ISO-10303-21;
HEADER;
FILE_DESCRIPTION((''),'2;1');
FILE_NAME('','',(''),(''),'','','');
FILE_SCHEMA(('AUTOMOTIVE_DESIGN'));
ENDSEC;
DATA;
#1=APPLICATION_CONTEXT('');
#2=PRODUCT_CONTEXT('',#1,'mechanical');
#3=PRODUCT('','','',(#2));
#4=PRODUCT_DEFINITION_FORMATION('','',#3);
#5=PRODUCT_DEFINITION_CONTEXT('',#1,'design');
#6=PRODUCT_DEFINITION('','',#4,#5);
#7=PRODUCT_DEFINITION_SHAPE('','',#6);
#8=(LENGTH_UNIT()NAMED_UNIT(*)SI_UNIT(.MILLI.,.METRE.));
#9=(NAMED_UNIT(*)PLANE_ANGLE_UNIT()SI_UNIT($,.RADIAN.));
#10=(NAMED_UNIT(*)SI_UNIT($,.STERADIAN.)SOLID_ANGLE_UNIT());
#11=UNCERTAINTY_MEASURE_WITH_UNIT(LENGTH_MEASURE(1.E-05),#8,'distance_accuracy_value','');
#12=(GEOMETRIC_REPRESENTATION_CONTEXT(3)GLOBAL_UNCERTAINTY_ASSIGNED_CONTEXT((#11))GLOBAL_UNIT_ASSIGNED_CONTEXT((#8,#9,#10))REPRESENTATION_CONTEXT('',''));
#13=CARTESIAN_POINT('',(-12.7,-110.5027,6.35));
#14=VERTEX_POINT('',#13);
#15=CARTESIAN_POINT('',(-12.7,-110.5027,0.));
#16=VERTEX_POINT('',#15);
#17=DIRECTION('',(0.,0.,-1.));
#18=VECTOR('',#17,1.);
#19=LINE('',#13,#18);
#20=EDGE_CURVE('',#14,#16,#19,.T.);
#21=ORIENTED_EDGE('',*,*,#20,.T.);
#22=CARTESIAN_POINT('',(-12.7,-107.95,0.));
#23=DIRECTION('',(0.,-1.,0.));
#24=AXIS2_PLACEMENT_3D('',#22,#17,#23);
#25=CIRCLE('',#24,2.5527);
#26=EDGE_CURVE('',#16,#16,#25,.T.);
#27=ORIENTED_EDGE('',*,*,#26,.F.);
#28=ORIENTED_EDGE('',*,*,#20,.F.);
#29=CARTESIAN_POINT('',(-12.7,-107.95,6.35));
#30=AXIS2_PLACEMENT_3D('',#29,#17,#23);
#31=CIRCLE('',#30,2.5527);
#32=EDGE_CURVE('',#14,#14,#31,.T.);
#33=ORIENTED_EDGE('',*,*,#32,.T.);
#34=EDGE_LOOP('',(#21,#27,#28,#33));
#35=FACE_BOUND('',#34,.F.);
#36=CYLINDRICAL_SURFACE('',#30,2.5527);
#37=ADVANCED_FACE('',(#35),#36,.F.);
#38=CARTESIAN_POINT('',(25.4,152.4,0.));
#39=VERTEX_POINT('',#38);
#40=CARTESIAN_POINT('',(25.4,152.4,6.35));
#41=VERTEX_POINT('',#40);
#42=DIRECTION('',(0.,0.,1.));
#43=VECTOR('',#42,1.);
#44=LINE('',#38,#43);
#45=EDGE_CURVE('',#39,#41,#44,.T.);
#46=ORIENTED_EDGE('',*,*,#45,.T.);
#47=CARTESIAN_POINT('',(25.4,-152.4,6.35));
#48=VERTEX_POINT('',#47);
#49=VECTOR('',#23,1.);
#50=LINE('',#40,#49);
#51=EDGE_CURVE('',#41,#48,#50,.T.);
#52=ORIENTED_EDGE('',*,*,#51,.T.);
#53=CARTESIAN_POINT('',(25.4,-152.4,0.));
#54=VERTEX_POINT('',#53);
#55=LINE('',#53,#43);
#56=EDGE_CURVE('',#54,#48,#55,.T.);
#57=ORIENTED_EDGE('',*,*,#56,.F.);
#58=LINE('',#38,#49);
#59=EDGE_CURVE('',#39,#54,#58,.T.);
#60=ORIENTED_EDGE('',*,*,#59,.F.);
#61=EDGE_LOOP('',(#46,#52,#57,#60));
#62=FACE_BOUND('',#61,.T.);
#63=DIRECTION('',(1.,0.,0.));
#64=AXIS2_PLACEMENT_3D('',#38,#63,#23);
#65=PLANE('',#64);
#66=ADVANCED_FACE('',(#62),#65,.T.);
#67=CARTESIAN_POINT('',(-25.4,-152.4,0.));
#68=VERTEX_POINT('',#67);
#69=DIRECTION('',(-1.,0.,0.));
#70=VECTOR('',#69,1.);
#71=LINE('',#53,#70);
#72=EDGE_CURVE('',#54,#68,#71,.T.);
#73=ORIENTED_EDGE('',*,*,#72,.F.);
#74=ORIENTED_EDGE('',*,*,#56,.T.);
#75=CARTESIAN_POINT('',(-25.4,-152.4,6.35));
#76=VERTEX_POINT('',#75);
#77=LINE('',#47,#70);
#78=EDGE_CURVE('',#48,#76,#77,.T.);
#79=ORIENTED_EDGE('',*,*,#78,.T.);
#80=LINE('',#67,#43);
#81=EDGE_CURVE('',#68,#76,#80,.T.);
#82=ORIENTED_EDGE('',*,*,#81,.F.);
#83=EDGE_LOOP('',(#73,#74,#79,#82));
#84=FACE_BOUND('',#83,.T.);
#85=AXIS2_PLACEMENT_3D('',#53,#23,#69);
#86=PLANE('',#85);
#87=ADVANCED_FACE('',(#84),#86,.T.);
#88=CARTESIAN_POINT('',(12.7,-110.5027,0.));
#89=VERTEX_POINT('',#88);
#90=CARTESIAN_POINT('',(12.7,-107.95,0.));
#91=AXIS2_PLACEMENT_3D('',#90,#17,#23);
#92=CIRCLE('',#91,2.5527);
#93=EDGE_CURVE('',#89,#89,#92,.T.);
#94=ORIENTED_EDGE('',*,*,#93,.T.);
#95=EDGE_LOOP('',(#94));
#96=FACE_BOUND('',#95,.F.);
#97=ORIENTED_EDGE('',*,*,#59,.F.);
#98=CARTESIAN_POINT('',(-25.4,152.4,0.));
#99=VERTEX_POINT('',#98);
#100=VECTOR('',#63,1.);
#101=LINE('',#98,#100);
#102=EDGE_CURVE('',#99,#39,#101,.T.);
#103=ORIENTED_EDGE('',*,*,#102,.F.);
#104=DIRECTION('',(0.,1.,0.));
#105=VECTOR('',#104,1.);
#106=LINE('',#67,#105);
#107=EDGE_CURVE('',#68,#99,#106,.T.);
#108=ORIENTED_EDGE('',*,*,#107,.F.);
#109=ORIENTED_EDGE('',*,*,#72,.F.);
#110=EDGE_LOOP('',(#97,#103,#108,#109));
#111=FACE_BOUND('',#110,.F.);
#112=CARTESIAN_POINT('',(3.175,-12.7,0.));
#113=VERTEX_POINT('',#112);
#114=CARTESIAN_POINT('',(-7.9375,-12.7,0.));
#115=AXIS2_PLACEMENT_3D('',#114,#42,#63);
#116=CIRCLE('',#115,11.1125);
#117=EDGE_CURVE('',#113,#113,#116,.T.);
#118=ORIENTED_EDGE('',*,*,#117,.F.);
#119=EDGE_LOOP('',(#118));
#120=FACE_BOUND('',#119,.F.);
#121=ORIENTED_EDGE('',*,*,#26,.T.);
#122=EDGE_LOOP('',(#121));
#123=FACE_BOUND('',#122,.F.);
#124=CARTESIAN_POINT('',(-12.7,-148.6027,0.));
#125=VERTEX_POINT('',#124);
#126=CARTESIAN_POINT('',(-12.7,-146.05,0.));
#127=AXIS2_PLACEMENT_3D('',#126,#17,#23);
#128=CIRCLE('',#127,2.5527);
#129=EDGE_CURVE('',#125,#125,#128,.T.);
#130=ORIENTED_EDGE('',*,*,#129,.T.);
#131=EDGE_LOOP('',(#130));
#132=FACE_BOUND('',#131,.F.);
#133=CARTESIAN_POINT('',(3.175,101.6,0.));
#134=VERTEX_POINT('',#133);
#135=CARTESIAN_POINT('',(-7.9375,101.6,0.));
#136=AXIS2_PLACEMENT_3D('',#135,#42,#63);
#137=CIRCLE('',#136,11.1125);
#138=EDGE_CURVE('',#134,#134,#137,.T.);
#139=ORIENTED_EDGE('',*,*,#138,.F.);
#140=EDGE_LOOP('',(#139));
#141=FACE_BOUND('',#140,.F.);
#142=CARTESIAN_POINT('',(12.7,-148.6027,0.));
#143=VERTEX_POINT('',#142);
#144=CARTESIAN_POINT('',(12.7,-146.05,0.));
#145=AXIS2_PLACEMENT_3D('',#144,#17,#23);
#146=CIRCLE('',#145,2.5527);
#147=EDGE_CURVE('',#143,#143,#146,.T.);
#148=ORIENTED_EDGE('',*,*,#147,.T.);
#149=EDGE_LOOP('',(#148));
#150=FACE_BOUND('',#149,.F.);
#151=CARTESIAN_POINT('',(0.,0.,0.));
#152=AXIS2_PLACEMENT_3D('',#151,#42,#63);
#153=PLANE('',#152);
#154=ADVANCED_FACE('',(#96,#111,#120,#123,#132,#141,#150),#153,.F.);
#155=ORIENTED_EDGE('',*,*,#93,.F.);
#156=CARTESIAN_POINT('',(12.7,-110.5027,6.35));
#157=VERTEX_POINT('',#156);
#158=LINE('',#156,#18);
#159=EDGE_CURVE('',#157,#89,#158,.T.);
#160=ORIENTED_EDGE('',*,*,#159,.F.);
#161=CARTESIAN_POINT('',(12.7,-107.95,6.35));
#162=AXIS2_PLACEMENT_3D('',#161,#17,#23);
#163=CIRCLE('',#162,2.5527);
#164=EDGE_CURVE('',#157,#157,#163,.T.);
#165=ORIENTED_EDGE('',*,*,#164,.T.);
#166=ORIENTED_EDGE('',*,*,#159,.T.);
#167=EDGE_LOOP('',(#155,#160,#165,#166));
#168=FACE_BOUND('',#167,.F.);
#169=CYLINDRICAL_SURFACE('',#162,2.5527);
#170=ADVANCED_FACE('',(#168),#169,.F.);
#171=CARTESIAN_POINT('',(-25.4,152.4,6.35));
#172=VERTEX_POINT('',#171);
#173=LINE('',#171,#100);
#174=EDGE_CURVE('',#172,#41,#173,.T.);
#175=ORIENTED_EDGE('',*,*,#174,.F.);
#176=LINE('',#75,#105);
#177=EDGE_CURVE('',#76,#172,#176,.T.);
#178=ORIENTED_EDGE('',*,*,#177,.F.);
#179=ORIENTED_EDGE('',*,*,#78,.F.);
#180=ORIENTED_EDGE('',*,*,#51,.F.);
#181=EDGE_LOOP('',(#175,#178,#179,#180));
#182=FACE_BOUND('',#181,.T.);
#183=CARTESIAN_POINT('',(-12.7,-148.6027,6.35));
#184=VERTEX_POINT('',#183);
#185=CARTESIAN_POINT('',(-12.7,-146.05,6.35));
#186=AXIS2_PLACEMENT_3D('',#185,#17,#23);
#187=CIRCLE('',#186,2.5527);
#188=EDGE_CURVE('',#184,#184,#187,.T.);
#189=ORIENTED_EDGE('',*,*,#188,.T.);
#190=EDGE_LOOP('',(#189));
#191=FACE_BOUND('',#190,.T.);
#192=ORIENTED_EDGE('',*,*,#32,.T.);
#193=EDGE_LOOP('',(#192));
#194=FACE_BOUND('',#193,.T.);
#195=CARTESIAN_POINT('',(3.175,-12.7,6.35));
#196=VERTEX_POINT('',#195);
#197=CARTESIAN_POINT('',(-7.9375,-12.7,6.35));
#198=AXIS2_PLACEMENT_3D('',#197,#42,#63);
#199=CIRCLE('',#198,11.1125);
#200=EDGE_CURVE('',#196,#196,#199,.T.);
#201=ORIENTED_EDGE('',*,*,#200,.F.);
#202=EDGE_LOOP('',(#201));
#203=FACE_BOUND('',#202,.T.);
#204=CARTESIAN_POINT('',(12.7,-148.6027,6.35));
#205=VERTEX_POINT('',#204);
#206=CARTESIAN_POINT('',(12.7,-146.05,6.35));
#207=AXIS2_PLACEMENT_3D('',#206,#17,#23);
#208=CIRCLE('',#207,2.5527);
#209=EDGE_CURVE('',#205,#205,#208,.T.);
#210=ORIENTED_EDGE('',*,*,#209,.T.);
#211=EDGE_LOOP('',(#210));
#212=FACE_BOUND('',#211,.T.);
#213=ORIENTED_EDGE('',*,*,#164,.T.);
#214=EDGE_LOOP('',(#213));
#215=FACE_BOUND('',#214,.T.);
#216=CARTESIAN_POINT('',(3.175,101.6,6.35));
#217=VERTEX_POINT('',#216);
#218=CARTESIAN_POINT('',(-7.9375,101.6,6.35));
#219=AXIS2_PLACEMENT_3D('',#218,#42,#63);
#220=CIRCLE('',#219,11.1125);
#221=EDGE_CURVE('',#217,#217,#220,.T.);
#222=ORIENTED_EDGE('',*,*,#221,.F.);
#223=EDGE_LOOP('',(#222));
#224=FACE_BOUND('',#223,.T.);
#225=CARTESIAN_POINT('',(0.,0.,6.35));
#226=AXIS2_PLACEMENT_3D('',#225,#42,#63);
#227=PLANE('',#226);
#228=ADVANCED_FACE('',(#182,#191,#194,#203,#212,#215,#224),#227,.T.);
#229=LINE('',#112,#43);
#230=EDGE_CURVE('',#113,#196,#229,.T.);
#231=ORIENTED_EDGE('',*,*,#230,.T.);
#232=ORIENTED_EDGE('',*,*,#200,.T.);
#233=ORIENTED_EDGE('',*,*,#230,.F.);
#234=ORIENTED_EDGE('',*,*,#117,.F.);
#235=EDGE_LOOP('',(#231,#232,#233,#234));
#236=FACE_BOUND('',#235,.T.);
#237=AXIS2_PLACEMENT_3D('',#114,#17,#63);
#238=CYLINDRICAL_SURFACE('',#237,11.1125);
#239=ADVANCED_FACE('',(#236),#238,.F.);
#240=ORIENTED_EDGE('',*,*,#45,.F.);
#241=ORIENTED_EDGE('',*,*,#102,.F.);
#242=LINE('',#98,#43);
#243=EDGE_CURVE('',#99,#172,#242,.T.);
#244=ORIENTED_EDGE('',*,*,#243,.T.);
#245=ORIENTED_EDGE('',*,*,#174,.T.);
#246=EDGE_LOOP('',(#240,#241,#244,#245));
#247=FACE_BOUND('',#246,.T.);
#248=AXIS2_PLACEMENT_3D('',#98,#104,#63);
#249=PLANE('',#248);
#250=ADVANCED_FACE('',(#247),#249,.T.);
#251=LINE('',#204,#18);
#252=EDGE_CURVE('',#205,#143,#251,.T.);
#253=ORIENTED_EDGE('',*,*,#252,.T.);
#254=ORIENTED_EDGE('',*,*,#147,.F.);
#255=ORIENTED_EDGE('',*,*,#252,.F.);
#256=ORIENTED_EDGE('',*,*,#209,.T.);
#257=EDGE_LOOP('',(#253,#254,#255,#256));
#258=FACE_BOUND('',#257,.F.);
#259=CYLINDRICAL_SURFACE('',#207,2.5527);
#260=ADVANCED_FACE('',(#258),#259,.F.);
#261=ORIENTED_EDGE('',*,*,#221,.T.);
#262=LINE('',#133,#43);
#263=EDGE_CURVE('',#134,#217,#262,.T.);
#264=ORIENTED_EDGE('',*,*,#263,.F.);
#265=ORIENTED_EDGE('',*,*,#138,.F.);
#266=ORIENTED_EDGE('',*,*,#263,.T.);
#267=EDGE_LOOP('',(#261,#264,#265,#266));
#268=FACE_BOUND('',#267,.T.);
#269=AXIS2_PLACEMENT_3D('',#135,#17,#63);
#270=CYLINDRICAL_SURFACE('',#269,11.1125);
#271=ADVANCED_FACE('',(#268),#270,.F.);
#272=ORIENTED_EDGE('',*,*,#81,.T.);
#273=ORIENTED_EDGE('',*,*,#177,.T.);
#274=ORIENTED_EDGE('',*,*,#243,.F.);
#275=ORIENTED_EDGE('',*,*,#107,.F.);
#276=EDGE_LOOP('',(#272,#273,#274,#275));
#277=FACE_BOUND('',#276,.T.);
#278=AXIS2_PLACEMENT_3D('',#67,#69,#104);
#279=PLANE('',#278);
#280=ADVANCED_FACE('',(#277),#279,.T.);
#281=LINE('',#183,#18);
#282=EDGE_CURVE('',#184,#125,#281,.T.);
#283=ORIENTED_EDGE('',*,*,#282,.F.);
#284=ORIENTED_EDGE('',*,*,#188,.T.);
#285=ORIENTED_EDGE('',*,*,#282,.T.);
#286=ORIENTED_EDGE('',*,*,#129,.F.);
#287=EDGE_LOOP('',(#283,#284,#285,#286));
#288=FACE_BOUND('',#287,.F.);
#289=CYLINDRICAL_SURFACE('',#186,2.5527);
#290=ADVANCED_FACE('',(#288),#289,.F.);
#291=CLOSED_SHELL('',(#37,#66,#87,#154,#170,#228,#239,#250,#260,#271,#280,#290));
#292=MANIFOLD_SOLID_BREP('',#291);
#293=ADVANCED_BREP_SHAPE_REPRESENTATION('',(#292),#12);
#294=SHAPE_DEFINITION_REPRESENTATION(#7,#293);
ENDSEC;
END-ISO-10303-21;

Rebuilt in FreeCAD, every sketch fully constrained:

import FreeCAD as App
import Part
import Sketcher
Q = App.Units.Quantity

doc = App.newDocument("Part")
body = doc.addObject("PartDesign::Body", "Body")

# Sketch on XY plane
sketch1 = doc.addObject("Sketcher::SketchObject", "Sketch")
body.addObject(sketch1)
sketch1.AttachmentSupport = (doc.XY_Plane, [""])
sketch1.MapMode = "FlatFace"
sketch1.addGeometry(Part.LineSegment(App.Vector(25.4, 152.4, 0), App.Vector(-25.4, 152.4, 0)), False)
sketch1.addGeometry(Part.LineSegment(App.Vector(-25.4, 152.4, 0), App.Vector(-25.4, -152.4, 0)), False)
sketch1.addGeometry(Part.LineSegment(App.Vector(-25.4, -152.4, 0), App.Vector(25.4, -152.4, 0)), False)
sketch1.addGeometry(Part.LineSegment(App.Vector(25.4, -152.4, 0), App.Vector(25.4, 152.4, 0)), False)
sketch1.addGeometry(Part.Circle(App.Vector(-7.9375, -12.7, 0), App.Vector(0, 0, 1), 11.1125), False)
sketch1.addGeometry(Part.Circle(App.Vector(-7.9375, 101.6, 0), App.Vector(0, 0, 1), 11.1125), False)
sketch1.addConstraint(Sketcher.Constraint("Coincident", 0, 2, 1, 1))
sketch1.addConstraint(Sketcher.Constraint("Coincident", 1, 2, 2, 1))
sketch1.addConstraint(Sketcher.Constraint("Coincident", 2, 2, 3, 1))
sketch1.addConstraint(Sketcher.Constraint("Coincident", 3, 2, 0, 1))
sketch1.addConstraint(Sketcher.Constraint("Horizontal", 0))
sketch1.addConstraint(Sketcher.Constraint("Vertical", 1))
sketch1.addConstraint(Sketcher.Constraint("Horizontal", 2))
sketch1.addConstraint(Sketcher.Constraint("Vertical", 3))
sketch1.addConstraint(Sketcher.Constraint("Equal", 4, 5))
sketch1.addConstraint(Sketcher.Constraint("Symmetric", 0, 2, 2, 2, -1, 1))
sketch1.addConstraint(Sketcher.Constraint("Vertical", 4, 3, 5, 3))
sketch1.addConstraint(Sketcher.Constraint("DistanceX", 0, 2, 0, 1, Q("2 in")))
sketch1.addConstraint(Sketcher.Constraint("DistanceY", 1, 2, 1, 1, Q("12 in")))
sketch1.addConstraint(Sketcher.Constraint("Diameter", 4, Q("0.875 in")))
sketch1.addConstraint(Sketcher.Constraint("DistanceY", -1, 1, 5, 3, Q("4 in")))
sketch1.addConstraint(Sketcher.Constraint("DistanceY", 4, 3, 5, 3, Q("4.5 in")))
sketch1.addConstraint(Sketcher.Constraint("DistanceX", 0, 2, 5, 3, Q("0.6875 in")))
pad1 = doc.addObject("PartDesign::Pad", "Pad")
body.addObject(pad1)
pad1.Profile = sketch1
pad1.Length = Q("0.25 in")

# Sketch on XY plane
sketch2 = doc.addObject("Sketcher::SketchObject", "Sketch001")
body.addObject(sketch2)
sketch2.AttachmentSupport = (doc.XY_Plane, [""])
sketch2.MapMode = "FlatFace"
sketch2.AttachmentOffset = App.Placement(App.Vector(0, 0, 0.25 * 25.4), App.Rotation())
sketch2.addGeometry(Part.Circle(App.Vector(-12.7, -107.95, 0), App.Vector(0, 0, 1), 2.5527), False)
sketch2.addGeometry(Part.Circle(App.Vector(12.7, -107.95, 0), App.Vector(0, 0, 1), 2.5527), False)
sketch2.addGeometry(Part.Circle(App.Vector(-12.7, -146.05, 0), App.Vector(0, 0, 1), 2.5527), False)
sketch2.addGeometry(Part.Circle(App.Vector(12.7, -146.05, 0), App.Vector(0, 0, 1), 2.5527), False)
sketch2.addConstraint(Sketcher.Constraint("Equal", 0, 1))
sketch2.addConstraint(Sketcher.Constraint("Equal", 1, 2))
sketch2.addConstraint(Sketcher.Constraint("Equal", 2, 3))
sketch2.addConstraint(Sketcher.Constraint("Symmetric", 0, 3, 1, 3, -2))
sketch2.addConstraint(Sketcher.Constraint("Symmetric", 2, 3, 3, 3, -2))
sketch2.addConstraint(Sketcher.Constraint("Vertical", 0, 3, 2, 3))
sketch2.addConstraint(Sketcher.Constraint("Diameter", 0, Q("0.201 in")))
sketch2.addConstraint(Sketcher.Constraint("DistanceX", 0, 3, 1, 3, Q("1 in")))
sketch2.addConstraint(Sketcher.Constraint("DistanceY", 2, 3, 0, 3, Q("1.5 in")))
sketch2.addConstraint(Sketcher.Constraint("DistanceY", 0, 3, -1, 1, Q("4.25 in")))
doc.recompute()
hole = doc.addObject("PartDesign::Hole", "Hole")
body.addObject(hole)
hole.Profile = sketch2
hole.ThreadType = "None"
hole.Diameter = Q("0.201 in")
hole.DepthType = "ThroughAll"

doc.recompute()
